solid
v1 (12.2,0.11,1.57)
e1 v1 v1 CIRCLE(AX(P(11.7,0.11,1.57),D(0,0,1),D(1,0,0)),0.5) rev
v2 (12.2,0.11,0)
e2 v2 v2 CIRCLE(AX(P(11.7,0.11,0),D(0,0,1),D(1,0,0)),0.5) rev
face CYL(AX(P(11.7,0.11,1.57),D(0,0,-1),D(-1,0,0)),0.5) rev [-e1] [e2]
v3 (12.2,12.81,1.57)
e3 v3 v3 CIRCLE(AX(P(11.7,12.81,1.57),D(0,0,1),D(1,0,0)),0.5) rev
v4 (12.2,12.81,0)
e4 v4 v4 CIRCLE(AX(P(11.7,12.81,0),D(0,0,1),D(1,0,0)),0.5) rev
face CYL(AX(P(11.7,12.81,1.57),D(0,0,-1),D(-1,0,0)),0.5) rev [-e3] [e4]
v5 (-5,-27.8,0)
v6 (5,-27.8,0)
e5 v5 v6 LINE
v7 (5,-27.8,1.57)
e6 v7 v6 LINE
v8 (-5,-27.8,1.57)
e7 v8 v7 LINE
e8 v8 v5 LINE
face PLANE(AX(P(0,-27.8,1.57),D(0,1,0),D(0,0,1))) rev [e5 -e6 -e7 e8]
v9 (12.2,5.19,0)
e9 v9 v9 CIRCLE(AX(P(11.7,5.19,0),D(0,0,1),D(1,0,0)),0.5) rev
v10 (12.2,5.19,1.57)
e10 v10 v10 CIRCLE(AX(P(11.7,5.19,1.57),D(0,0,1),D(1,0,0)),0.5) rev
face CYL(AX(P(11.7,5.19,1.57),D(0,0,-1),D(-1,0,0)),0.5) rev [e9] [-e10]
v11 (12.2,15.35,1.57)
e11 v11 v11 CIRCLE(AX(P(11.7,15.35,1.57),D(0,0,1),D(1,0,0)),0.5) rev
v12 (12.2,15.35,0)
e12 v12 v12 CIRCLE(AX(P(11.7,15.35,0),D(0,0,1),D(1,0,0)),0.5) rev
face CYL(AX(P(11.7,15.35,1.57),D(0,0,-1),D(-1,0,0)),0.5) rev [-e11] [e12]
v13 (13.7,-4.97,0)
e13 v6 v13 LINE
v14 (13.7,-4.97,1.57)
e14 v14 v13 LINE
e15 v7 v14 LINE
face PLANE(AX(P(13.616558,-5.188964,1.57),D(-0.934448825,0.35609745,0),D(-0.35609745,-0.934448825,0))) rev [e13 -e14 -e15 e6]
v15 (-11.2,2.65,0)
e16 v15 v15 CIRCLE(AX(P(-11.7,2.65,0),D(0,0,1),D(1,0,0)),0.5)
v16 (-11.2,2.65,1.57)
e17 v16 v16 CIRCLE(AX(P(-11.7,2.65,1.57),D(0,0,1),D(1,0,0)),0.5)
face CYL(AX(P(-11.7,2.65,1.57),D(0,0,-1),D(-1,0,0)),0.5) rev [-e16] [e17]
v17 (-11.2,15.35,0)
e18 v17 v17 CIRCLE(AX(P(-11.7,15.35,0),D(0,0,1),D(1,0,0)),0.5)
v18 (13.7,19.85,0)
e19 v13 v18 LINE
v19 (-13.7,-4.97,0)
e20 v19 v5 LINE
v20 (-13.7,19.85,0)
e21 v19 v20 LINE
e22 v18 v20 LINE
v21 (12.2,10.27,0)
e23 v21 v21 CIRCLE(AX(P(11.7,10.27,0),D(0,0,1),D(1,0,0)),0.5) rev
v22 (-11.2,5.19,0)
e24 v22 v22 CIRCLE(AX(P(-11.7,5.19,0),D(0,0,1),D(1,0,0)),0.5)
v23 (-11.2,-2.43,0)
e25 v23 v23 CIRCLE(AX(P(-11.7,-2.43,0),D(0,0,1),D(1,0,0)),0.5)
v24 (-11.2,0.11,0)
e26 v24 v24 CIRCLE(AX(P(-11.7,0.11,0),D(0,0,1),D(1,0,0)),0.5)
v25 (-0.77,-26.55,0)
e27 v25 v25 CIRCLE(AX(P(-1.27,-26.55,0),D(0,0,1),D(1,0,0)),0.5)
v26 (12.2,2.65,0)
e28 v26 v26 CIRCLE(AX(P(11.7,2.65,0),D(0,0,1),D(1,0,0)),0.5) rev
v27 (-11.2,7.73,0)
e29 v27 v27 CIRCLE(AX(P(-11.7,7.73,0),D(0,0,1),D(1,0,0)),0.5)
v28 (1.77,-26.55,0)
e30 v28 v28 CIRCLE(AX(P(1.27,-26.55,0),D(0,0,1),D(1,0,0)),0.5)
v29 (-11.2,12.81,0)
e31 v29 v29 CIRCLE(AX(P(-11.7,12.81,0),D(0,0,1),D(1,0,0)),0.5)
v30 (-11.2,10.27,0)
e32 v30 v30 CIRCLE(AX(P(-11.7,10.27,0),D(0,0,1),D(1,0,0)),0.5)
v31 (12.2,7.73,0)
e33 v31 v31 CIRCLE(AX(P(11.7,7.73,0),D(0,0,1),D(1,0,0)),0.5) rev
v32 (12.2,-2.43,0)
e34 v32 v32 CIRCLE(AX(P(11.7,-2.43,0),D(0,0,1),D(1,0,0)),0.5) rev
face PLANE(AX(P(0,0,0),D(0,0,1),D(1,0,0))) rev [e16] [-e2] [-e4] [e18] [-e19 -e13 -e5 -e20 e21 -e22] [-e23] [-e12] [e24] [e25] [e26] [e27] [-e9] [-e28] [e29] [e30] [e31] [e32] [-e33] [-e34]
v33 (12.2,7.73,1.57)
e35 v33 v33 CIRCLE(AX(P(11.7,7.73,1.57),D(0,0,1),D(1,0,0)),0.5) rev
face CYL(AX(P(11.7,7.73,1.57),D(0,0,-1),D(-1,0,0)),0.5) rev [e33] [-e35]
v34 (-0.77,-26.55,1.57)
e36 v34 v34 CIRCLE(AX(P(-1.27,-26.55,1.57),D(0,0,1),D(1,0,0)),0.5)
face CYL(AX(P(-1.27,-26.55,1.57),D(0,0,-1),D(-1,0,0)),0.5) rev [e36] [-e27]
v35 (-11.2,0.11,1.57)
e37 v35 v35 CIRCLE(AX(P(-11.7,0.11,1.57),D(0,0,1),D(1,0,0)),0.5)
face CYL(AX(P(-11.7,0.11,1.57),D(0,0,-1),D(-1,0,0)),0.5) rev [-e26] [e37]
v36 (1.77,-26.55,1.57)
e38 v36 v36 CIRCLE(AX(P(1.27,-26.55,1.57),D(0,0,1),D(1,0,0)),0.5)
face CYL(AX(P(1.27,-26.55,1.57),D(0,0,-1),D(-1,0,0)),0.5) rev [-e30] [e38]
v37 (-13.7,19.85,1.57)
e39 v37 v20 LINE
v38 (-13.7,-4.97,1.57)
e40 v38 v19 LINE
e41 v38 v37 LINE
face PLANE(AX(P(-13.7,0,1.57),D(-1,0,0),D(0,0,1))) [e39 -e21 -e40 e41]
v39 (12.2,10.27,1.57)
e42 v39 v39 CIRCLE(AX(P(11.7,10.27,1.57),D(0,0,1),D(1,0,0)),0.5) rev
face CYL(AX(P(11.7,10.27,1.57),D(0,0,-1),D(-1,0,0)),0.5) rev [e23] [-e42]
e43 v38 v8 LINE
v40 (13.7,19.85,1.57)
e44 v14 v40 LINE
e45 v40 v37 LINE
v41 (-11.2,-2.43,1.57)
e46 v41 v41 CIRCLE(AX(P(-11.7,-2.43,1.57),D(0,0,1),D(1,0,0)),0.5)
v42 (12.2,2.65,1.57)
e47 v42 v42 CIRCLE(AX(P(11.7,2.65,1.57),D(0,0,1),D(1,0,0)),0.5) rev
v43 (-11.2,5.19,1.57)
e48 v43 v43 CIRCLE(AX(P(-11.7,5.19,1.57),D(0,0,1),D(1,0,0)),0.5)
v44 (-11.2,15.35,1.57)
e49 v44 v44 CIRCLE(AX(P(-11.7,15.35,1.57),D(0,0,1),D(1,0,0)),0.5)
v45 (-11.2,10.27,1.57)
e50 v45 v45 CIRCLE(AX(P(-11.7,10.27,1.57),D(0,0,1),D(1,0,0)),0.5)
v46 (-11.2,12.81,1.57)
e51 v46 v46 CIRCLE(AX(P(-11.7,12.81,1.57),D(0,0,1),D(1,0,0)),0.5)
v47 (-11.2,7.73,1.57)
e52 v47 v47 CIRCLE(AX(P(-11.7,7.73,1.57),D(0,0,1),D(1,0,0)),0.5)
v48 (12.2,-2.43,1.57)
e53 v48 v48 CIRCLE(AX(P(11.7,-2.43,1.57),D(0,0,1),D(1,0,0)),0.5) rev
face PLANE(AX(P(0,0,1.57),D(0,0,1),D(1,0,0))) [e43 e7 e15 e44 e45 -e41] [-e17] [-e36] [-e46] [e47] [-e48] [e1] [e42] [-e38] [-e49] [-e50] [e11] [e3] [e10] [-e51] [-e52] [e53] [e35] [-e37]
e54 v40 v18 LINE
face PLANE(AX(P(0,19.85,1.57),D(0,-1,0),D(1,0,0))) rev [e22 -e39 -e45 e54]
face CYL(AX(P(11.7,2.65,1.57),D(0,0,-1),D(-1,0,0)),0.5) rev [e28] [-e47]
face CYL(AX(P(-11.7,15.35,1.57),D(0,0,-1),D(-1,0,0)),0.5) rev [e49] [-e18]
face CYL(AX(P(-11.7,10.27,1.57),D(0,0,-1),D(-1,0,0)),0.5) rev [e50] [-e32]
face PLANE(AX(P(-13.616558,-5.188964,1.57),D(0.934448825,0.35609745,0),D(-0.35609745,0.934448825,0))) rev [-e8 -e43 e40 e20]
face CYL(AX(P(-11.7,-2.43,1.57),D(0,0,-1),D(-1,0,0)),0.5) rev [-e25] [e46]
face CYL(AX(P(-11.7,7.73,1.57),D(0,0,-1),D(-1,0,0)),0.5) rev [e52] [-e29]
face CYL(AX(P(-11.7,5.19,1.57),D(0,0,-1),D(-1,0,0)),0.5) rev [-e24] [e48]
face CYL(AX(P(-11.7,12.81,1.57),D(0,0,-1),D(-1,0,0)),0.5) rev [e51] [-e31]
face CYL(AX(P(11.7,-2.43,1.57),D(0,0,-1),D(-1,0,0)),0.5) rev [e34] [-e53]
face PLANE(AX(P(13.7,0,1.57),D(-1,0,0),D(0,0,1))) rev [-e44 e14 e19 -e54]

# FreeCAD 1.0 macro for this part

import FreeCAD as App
import Part
import Sketcher


def add_polygon(sketch, points):
    """Adds a closed chain of lines whose ends are joined by coincident constraints."""
    first, n = sketch.GeometryCount, len(points)
    for a, b in zip(points, points[1:] + points[:1]):
        sketch.addGeometry(Part.LineSegment(App.Vector(*a, 0), App.Vector(*b, 0)), False)
    for i in range(n):
        sketch.addConstraint(Sketcher.Constraint("Coincident", first + i, 2, first + (i + 1) % n, 1))

doc = App.newDocument("Part")
body = doc.addObject("PartDesign::Body", "Body")

sketch1 = body.newObject("Sketcher::SketchObject", "Sketch")
sketch1.AttachmentSupport = (doc.getObject("XY_Plane"), [""])
sketch1.MapMode = "FlatFace"
add_polygon(sketch1, [(13.7, 19.9), (-13.7, 19.9), (-13.7, -5), (-5, -27.8), (5, -27.8), (13.7, -5)])
sketch1.addGeometry(Part.Circle(App.Vector(-1.3, -26.6, 0), App.Vector(0, 0, 1), 0.5), False)
sketch1.addGeometry(Part.Circle(App.Vector(1.3, -26.6, 0), App.Vector(0, 0, 1), 0.5), False)
sketch1.addGeometry(Part.Circle(App.Vector(-11.7, -2.4, 0), App.Vector(0, 0, 1), 0.5), False)
sketch1.addGeometry(Part.Circle(App.Vector(-11.7, 0.1, 0), App.Vector(0, 0, 1), 0.5), False)
sketch1.addGeometry(Part.Circle(App.Vector(-11.7, 2.6, 0), App.Vector(0, 0, 1), 0.5), False)
sketch1.addGeometry(Part.Circle(App.Vector(-11.7, 5.2, 0), App.Vector(0, 0, 1), 0.5), False)
sketch1.addGeometry(Part.Circle(App.Vector(-11.7, 7.7, 0), App.Vector(0, 0, 1), 0.5), False)
sketch1.addGeometry(Part.Circle(App.Vector(-11.7, 10.3, 0), App.Vector(0, 0, 1), 0.5), False)
sketch1.addGeometry(Part.Circle(App.Vector(-11.7, 12.8, 0), App.Vector(0, 0, 1), 0.5), False)
sketch1.addGeometry(Part.Circle(App.Vector(-11.7, 15.3, 0), App.Vector(0, 0, 1), 0.5), False)
sketch1.addGeometry(Part.Circle(App.Vector(11.7, -2.4, 0), App.Vector(0, 0, 1), 0.5), False)
sketch1.addGeometry(Part.Circle(App.Vector(11.7, 0.1, 0), App.Vector(0, 0, 1), 0.5), False)
sketch1.addGeometry(Part.Circle(App.Vector(11.7, 2.6, 0), App.Vector(0, 0, 1), 0.5), False)
sketch1.addGeometry(Part.Circle(App.Vector(11.7, 5.2, 0), App.Vector(0, 0, 1), 0.5), False)
sketch1.addGeometry(Part.Circle(App.Vector(11.7, 7.7, 0), App.Vector(0, 0, 1), 0.5), False)
sketch1.addGeometry(Part.Circle(App.Vector(11.7, 10.3, 0), App.Vector(0, 0, 1), 0.5), False)
sketch1.addGeometry(Part.Circle(App.Vector(11.7, 12.8, 0), App.Vector(0, 0, 1), 0.5), False)
sketch1.addGeometry(Part.Circle(App.Vector(11.7, 15.3, 0), App.Vector(0, 0, 1), 0.5), False)
sketch1.addConstraint(Sketcher.Constraint("Horizontal", 0))
sketch1.addConstraint(Sketcher.Constraint("Vertical", 1))
sketch1.addConstraint(Sketcher.Constraint("Horizontal", 3))
sketch1.addConstraint(Sketcher.Constraint("Vertical", 5))
sketch1.addConstraint(Sketcher.Constraint("Equal", 6, 7))
sketch1.addConstraint(Sketcher.Constraint("Equal", 7, 8))
sketch1.addConstraint(Sketcher.Constraint("Equal", 8, 9))
sketch1.addConstraint(Sketcher.Constraint("Equal", 9, 10))
sketch1.addConstraint(Sketcher.Constraint("Equal", 10, 11))
sketch1.addConstraint(Sketcher.Constraint("Equal", 11, 12))
sketch1.addConstraint(Sketcher.Constraint("Equal", 12, 13))
sketch1.addConstraint(Sketcher.Constraint("Equal", 13, 14))
sketch1.addConstraint(Sketcher.Constraint("Equal", 14, 15))
sketch1.addConstraint(Sketcher.Constraint("Equal", 15, 16))
sketch1.addConstraint(Sketcher.Constraint("Equal", 16, 17))
sketch1.addConstraint(Sketcher.Constraint("Equal", 17, 18))
sketch1.addConstraint(Sketcher.Constraint("Equal", 18, 19))
sketch1.addConstraint(Sketcher.Constraint("Equal", 19, 20))
sketch1.addConstraint(Sketcher.Constraint("Equal", 20, 21))
sketch1.addConstraint(Sketcher.Constraint("Equal", 21, 22))
sketch1.addConstraint(Sketcher.Constraint("Equal", 22, 23))
sketch1.addConstraint(Sketcher.Constraint("Symmetric", 6, 3, 7, 3, -2))
sketch1.addConstraint(Sketcher.Constraint("Symmetric", 8, 3, 16, 3, -2))
sketch1.addConstraint(Sketcher.Constraint("Symmetric", 9, 3, 17, 3, -2))
sketch1.addConstraint(Sketcher.Constraint("Symmetric", 10, 3, 18, 3, -2))
sketch1.addConstraint(Sketcher.Constraint("Symmetric", 11, 3, 19, 3, -2))
sketch1.addConstraint(Sketcher.Constraint("Symmetric", 12, 3, 20, 3, -2))
sketch1.addConstraint(Sketcher.Constraint("Symmetric", 13, 3, 21, 3, -2))
sketch1.addConstraint(Sketcher.Constraint("Symmetric", 14, 3, 22, 3, -2))
sketch1.addConstraint(Sketcher.Constraint("Symmetric", 15, 3, 23, 3, -2))
sketch1.addConstraint(Sketcher.Constraint("Symmetric", 1, 2, 4, 2, -2))
sketch1.addConstraint(Sketcher.Constraint("Vertical", 8, 3, 9, 3))
sketch1.addConstraint(Sketcher.Constraint("Vertical", 9, 3, 10, 3))
sketch1.addConstraint(Sketcher.Constraint("Vertical", 10, 3, 11, 3))
sketch1.addConstraint(Sketcher.Constraint("Vertical", 11, 3, 12, 3))
sketch1.addConstraint(Sketcher.Constraint("Vertical", 12, 3, 13, 3))
sketch1.addConstraint(Sketcher.Constraint("Vertical", 13, 3, 14, 3))
sketch1.addConstraint(Sketcher.Constraint("Vertical", 14, 3, 15, 3))
sketch1.addConstraint(Sketcher.Constraint("Equal", 2, 4))
sketch1.addConstraint(Sketcher.Constraint("Diameter", 6, 1.0))
sketch1.addConstraint(Sketcher.Constraint("DistanceX", 3, 1, 3, 2, 10.0))
sketch1.addConstraint(Sketcher.Constraint("DistanceX", 0, 2, 0, 1, 27.4))
sketch1.addConstraint(Sketcher.Constraint("DistanceX", 0, 2, 15, 3, 2.0))
sketch1.addConstraint(Sketcher.Constraint("DistanceY", 1, 2, 1, 1, 24.82))
sketch1.addConstraint(Sketcher.Constraint("DistanceY", 2, 2, -1, 1, 27.8))
sketch1.addConstraint(Sketcher.Constraint("DistanceY", 6, 3, 10, 3, 29.2))
sketch1.addConstraint(Sketcher.Constraint("DistanceY", 8, 3, 13, 3, 12.7))
sketch1.addConstraint(Sketcher.Constraint("DistanceY", 9, 3, 14, 3, 12.7))
sketch1.addConstraint(Sketcher.Constraint("DistanceY", 10, 3, 15, 3, 12.7))
sketch1.addConstraint(Sketcher.Constraint("DistanceY", 15, 3, 0, 2, 4.5))
sketch1.addConstraint(Sketcher.Constraint("DistanceY", 1, 2, 12, 3, 12.7))
sketch1.addConstraint(Sketcher.Constraint("DistanceX", 6, 3, -1, 1, 1.27))
sketch1.addConstraint(Sketcher.Constraint("DistanceY", 6, 3, -1, 1, 26.55))
sketch1.addConstraint(Sketcher.Constraint("DistanceY", 8, 3, -1, 1, 2.43))
sketch1.addConstraint(Sketcher.Constraint("DistanceY", -1, 1, 9, 3, 0.11))
sketch1.addConstraint(Sketcher.Constraint("DistanceY", -1, 1, 11, 3, 5.19))
pad1 = body.newObject("PartDesign::Pad", "Pad")
pad1.Profile = sketch1
pad1.Length = 1.57

doc.recompute()
